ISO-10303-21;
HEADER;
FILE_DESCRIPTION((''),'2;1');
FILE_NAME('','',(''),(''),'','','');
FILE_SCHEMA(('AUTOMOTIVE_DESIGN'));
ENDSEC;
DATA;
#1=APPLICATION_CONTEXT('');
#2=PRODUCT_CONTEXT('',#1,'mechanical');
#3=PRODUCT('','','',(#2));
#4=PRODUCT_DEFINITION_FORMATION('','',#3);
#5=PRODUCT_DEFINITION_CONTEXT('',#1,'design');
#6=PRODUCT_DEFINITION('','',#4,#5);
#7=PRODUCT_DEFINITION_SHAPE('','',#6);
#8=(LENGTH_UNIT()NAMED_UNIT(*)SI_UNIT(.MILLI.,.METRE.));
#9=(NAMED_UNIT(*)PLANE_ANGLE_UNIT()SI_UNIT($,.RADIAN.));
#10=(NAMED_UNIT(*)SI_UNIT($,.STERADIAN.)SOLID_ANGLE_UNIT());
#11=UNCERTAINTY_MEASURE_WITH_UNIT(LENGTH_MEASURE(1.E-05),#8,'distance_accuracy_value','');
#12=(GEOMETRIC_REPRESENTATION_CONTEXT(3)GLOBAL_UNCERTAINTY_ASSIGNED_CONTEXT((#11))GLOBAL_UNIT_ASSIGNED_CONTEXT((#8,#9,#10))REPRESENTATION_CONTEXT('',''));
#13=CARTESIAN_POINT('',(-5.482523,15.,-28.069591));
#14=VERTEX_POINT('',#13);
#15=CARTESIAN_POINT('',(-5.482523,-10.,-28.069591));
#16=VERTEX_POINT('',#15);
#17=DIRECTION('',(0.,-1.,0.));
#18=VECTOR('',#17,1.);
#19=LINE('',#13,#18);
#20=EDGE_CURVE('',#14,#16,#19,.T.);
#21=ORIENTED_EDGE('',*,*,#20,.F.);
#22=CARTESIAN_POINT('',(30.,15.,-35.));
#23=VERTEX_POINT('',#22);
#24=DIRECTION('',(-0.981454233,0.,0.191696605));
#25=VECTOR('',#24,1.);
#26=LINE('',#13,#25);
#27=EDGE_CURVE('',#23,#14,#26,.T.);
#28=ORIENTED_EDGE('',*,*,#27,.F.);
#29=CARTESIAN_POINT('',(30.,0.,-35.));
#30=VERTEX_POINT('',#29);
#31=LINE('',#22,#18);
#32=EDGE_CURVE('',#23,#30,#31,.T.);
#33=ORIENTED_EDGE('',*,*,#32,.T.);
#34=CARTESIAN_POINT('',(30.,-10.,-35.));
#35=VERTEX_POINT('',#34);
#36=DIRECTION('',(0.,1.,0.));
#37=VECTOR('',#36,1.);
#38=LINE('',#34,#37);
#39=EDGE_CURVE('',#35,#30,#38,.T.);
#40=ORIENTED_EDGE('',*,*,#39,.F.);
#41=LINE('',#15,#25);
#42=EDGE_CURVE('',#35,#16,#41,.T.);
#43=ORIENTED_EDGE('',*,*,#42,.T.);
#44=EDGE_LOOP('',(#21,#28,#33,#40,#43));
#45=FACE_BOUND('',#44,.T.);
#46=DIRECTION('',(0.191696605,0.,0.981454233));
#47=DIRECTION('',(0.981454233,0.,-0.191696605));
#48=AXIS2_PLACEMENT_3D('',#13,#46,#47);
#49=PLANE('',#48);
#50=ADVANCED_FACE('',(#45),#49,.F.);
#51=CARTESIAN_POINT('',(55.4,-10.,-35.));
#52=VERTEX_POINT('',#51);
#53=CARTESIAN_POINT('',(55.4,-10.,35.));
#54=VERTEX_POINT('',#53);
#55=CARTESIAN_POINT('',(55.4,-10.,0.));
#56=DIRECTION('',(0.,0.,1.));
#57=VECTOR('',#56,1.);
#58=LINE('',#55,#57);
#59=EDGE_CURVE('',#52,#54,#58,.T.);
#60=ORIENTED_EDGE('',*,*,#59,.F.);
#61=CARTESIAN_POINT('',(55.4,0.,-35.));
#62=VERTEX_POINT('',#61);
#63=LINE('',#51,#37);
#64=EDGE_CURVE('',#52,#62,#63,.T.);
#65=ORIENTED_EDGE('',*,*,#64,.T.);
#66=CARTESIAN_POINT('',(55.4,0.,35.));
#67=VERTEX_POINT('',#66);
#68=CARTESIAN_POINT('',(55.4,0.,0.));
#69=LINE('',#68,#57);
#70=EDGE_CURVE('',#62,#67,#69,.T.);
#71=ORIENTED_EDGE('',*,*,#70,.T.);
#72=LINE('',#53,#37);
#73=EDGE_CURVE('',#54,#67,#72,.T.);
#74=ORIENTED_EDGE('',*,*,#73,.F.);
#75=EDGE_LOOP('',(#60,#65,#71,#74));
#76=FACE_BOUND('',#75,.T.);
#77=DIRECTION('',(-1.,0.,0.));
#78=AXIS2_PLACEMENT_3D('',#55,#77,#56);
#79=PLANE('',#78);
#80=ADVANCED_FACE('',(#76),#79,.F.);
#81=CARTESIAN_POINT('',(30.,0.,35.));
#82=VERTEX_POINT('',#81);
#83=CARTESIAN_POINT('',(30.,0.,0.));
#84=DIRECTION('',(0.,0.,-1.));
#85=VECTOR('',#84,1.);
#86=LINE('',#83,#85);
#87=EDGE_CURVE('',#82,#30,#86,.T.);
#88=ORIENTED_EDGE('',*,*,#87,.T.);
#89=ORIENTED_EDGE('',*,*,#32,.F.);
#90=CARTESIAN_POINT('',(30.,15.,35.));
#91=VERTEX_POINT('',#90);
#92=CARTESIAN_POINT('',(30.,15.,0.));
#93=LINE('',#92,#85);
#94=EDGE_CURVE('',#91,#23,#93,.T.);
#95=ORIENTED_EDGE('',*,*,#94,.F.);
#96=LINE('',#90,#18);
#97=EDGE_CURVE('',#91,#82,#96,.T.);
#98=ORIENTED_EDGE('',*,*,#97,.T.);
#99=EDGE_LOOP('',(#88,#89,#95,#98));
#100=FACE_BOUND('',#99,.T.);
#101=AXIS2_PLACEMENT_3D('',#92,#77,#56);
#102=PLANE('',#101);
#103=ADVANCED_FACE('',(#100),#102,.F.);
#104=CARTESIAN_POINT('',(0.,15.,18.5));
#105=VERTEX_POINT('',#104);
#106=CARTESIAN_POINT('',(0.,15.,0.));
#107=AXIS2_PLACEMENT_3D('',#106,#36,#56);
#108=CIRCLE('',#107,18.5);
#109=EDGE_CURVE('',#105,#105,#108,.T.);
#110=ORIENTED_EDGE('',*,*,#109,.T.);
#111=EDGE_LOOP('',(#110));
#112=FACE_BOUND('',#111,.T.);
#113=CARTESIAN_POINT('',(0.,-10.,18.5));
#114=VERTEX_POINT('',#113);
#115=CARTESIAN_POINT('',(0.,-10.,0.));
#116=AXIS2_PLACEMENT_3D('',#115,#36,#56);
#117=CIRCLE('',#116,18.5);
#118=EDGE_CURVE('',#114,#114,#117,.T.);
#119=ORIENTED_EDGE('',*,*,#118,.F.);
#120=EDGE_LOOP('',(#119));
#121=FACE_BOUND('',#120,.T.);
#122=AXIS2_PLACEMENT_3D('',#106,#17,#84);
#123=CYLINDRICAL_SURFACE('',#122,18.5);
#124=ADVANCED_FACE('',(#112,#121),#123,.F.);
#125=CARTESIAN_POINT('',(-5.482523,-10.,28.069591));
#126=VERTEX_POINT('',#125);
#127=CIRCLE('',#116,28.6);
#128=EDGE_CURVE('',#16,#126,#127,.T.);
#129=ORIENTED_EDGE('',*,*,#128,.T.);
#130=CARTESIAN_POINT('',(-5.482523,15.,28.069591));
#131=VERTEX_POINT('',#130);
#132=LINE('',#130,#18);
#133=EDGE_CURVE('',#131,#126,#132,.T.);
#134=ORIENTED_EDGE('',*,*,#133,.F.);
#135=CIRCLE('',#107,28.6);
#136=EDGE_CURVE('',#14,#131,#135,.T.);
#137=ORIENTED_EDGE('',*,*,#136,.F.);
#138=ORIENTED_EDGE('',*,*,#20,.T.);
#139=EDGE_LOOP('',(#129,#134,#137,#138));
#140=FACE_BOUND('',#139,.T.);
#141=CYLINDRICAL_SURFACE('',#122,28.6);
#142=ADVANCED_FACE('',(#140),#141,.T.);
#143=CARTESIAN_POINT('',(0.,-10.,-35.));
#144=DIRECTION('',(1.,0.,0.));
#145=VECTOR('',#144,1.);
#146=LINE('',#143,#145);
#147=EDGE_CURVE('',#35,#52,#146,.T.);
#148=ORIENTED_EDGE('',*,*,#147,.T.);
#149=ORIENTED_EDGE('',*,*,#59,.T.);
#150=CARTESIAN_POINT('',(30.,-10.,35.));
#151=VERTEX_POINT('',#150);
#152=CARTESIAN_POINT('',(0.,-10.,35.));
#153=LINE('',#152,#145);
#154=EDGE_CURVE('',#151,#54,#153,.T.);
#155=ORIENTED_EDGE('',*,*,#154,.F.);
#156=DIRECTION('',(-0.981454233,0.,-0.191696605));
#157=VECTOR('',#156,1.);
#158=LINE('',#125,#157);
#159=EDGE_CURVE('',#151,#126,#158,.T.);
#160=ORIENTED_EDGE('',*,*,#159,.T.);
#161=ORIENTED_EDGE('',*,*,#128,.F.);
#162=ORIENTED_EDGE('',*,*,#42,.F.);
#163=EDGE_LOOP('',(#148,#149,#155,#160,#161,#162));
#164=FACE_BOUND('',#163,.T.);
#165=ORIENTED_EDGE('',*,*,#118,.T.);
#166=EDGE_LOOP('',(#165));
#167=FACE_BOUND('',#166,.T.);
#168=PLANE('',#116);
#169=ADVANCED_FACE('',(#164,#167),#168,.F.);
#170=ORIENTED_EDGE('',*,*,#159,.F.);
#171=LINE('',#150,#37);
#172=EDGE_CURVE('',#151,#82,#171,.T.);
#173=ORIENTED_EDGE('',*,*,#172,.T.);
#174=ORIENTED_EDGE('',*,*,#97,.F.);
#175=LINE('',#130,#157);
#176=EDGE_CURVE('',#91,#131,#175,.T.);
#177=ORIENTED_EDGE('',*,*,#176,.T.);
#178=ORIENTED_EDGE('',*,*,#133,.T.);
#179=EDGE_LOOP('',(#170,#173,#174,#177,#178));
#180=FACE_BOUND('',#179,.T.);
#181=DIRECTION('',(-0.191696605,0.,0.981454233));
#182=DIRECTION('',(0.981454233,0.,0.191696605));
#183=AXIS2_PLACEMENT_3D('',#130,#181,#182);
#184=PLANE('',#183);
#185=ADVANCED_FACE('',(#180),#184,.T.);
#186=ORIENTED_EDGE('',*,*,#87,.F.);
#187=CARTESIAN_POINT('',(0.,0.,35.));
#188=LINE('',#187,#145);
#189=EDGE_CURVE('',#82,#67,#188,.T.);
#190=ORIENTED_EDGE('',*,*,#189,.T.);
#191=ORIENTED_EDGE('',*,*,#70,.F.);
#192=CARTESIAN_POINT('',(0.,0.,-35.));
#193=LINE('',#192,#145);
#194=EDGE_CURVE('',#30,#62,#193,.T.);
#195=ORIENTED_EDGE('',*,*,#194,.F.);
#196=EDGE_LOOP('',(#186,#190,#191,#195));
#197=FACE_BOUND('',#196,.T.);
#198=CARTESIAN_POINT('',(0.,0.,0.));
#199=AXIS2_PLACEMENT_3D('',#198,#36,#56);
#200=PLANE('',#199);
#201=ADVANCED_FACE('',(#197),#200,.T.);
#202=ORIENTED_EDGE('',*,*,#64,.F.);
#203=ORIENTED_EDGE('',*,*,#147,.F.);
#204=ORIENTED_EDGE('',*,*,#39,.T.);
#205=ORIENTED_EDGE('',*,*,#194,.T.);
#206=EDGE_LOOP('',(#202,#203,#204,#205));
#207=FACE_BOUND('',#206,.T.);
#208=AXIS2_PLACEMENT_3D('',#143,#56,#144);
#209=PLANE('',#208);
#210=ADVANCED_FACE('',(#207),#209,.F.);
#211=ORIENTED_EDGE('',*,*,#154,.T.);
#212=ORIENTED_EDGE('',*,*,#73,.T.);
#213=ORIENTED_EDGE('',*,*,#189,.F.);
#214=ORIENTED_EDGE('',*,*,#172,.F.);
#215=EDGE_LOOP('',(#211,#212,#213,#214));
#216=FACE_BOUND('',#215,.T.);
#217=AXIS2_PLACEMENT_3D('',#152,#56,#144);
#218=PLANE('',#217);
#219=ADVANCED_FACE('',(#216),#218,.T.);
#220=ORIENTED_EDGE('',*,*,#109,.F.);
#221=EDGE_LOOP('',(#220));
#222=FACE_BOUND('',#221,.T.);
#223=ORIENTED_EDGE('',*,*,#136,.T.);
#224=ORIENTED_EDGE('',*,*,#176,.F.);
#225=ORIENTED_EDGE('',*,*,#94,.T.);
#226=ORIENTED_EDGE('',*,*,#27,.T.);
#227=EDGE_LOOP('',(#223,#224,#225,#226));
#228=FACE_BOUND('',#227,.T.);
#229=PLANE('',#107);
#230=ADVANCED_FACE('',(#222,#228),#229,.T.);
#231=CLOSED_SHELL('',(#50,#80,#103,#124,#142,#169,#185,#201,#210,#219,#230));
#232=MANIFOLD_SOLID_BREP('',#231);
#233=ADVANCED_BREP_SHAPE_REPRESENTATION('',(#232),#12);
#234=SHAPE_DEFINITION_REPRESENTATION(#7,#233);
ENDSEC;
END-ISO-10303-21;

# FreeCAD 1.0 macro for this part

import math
import FreeCAD as App
import Part
import Sketcher

V = App.Vector

doc = App.newDocument("Part")
body = doc.addObject("PartDesign::Body", "Body")

# Sketch on XZ plane
sketch1 = body.newObject("Sketcher::SketchObject", "Sketch")
sketch1.AttachmentSupport = (doc.getObject("XZ_Plane"), [""])
sketch1.MapMode = "FlatFace"
sketch1.addGeometry([
    Part.LineSegment(V(30, -35, 0), V(-5, -28, 0)),  # 0
    Part.ArcOfCircle(Part.Circle(V(0, 0, 0), V(0, 0, 1), 29), math.radians(101), math.radians(259)),  # 1
    Part.LineSegment(V(-5, 28, 0), V(30, 35, 0)),  # 2
    Part.LineSegment(V(30, 35, 0), V(30, -35, 0)),  # 3
    Part.Circle(V(0, 0, 0), V(0, 0, 1), 18),  # 4
], False)
sketch1.addConstraint([
    Sketcher.Constraint("Tangent", 0, 2, 1, 2),
    Sketcher.Constraint("Tangent", 1, 1, 2, 1),
    Sketcher.Constraint("Coincident", 2, 2, 3, 1),
    Sketcher.Constraint("Coincident", 3, 2, 0, 1),
    Sketcher.Constraint("Vertical", 3),
    Sketcher.Constraint("Coincident", 1, 3, -1, 1),
    Sketcher.Constraint("Coincident", 4, 3, -1, 1),
    Sketcher.Constraint("Vertical", 0, 2, 1, 1),
    Sketcher.Constraint("Diameter", 4, 37.0),
    Sketcher.Constraint("Radius", 1, 28.6),
    Sketcher.Constraint("DistanceY", 3, 2, 3, 1, 70.0),
    Sketcher.Constraint("DistanceX", -1, 1, 2, 2, 30.0),
])
pad1 = body.newObject("PartDesign::Pad", "Pad")
pad1.Profile = sketch1
pad1.Length = 15
pad1.Reversed = True

# Sketch on XZ plane
sketch2 = body.newObject("Sketcher::SketchObject", "Sketch001")
sketch2.AttachmentSupport = (doc.getObject("XZ_Plane"), [""])
sketch2.MapMode = "FlatFace"
sketch2.addGeometry([
    Part.LineSegment(V(30, -35, 0), V(-5, -28, 0)),  # 0
    Part.ArcOfCircle(Part.Circle(V(0, 0, 0), V(0, 0, 1), 29), math.radians(101), math.radians(259)),  # 1
    Part.LineSegment(V(-5, 28, 0), V(30, 35, 0)),  # 2
    Part.LineSegment(V(30, 35, 0), V(55, 35, 0)),  # 3
    Part.LineSegment(V(55, 35, 0), V(55, -35, 0)),  # 4
    Part.LineSegment(V(55, -35, 0), V(30, -35, 0)),  # 5
    Part.Circle(V(0, 0, 0), V(0, 0, 1), 18),  # 6
], False)
sketch2.addConstraint([
    Sketcher.Constraint("Tangent", 0, 2, 1, 2),
    Sketcher.Constraint("Tangent", 1, 1, 2, 1),
    Sketcher.Constraint("Coincident", 2, 2, 3, 1),
    Sketcher.Constraint("Coincident", 3, 2, 4, 1),
    Sketcher.Constraint("Coincident", 4, 2, 5, 1),
    Sketcher.Constraint("Coincident", 5, 2, 0, 1),
    Sketcher.Constraint("Horizontal", 3),
    Sketcher.Constraint("Vertical", 4),
    Sketcher.Constraint("Horizontal", 5),
    Sketcher.Constraint("Coincident", 1, 3, -1, 1),
    Sketcher.Constraint("Coincident", 6, 3, -1, 1),
    Sketcher.Constraint("Symmetric", 2, 2, 5, 2, -1),
    Sketcher.Constraint("Diameter", 6, 37.0),
    Sketcher.Constraint("Radius", 1, 28.6),
    Sketcher.Constraint("DistanceY", 4, 2, 4, 1, 70.0),
    Sketcher.Constraint("DistanceX", 3, 1, 3, 2, 25.4),
    Sketcher.Constraint("DistanceX", -1, 1, 2, 2, 30.0),
])
pad2 = body.newObject("PartDesign::Pad", "Pad001")
pad2.Profile = sketch2
pad2.Length = 10

doc.recompute()
